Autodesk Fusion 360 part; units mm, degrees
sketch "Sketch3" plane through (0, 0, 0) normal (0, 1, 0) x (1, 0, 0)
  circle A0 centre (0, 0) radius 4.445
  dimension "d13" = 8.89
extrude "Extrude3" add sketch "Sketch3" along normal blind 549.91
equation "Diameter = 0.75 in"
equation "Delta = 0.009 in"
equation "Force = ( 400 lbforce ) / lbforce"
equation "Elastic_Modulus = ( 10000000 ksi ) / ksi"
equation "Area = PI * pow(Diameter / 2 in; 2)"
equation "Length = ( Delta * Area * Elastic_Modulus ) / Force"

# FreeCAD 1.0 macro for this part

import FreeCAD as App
import Part
import Sketcher
Q = App.Units.Quantity

doc = App.newDocument("Part")
body = doc.addObject("PartDesign::Body", "Body")

# Sketch on XZ plane
sketch1 = doc.addObject("Sketcher::SketchObject", "Sketch")
body.addObject(sketch1)
sketch1.AttachmentSupport = (doc.XZ_Plane, [""])
sketch1.MapMode = "FlatFace"
sketch1.addGeometry(Part.Circle(App.Vector(0, 0, 0), App.Vector(0, 0, 1), 4.4), False)
sketch1.addConstraint([
    Sketcher.Constraint("Coincident", 0, 3, -1, 1),
    Sketcher.Constraint("Diameter", 0, Q("0.35 in")),
])
pad1 = doc.addObject("PartDesign::Pad", "Pad")
body.addObject(pad1)
pad1.Profile = sketch1
pad1.Length = Q("21.65 in")
pad1.Reversed = True

doc.recompute()
